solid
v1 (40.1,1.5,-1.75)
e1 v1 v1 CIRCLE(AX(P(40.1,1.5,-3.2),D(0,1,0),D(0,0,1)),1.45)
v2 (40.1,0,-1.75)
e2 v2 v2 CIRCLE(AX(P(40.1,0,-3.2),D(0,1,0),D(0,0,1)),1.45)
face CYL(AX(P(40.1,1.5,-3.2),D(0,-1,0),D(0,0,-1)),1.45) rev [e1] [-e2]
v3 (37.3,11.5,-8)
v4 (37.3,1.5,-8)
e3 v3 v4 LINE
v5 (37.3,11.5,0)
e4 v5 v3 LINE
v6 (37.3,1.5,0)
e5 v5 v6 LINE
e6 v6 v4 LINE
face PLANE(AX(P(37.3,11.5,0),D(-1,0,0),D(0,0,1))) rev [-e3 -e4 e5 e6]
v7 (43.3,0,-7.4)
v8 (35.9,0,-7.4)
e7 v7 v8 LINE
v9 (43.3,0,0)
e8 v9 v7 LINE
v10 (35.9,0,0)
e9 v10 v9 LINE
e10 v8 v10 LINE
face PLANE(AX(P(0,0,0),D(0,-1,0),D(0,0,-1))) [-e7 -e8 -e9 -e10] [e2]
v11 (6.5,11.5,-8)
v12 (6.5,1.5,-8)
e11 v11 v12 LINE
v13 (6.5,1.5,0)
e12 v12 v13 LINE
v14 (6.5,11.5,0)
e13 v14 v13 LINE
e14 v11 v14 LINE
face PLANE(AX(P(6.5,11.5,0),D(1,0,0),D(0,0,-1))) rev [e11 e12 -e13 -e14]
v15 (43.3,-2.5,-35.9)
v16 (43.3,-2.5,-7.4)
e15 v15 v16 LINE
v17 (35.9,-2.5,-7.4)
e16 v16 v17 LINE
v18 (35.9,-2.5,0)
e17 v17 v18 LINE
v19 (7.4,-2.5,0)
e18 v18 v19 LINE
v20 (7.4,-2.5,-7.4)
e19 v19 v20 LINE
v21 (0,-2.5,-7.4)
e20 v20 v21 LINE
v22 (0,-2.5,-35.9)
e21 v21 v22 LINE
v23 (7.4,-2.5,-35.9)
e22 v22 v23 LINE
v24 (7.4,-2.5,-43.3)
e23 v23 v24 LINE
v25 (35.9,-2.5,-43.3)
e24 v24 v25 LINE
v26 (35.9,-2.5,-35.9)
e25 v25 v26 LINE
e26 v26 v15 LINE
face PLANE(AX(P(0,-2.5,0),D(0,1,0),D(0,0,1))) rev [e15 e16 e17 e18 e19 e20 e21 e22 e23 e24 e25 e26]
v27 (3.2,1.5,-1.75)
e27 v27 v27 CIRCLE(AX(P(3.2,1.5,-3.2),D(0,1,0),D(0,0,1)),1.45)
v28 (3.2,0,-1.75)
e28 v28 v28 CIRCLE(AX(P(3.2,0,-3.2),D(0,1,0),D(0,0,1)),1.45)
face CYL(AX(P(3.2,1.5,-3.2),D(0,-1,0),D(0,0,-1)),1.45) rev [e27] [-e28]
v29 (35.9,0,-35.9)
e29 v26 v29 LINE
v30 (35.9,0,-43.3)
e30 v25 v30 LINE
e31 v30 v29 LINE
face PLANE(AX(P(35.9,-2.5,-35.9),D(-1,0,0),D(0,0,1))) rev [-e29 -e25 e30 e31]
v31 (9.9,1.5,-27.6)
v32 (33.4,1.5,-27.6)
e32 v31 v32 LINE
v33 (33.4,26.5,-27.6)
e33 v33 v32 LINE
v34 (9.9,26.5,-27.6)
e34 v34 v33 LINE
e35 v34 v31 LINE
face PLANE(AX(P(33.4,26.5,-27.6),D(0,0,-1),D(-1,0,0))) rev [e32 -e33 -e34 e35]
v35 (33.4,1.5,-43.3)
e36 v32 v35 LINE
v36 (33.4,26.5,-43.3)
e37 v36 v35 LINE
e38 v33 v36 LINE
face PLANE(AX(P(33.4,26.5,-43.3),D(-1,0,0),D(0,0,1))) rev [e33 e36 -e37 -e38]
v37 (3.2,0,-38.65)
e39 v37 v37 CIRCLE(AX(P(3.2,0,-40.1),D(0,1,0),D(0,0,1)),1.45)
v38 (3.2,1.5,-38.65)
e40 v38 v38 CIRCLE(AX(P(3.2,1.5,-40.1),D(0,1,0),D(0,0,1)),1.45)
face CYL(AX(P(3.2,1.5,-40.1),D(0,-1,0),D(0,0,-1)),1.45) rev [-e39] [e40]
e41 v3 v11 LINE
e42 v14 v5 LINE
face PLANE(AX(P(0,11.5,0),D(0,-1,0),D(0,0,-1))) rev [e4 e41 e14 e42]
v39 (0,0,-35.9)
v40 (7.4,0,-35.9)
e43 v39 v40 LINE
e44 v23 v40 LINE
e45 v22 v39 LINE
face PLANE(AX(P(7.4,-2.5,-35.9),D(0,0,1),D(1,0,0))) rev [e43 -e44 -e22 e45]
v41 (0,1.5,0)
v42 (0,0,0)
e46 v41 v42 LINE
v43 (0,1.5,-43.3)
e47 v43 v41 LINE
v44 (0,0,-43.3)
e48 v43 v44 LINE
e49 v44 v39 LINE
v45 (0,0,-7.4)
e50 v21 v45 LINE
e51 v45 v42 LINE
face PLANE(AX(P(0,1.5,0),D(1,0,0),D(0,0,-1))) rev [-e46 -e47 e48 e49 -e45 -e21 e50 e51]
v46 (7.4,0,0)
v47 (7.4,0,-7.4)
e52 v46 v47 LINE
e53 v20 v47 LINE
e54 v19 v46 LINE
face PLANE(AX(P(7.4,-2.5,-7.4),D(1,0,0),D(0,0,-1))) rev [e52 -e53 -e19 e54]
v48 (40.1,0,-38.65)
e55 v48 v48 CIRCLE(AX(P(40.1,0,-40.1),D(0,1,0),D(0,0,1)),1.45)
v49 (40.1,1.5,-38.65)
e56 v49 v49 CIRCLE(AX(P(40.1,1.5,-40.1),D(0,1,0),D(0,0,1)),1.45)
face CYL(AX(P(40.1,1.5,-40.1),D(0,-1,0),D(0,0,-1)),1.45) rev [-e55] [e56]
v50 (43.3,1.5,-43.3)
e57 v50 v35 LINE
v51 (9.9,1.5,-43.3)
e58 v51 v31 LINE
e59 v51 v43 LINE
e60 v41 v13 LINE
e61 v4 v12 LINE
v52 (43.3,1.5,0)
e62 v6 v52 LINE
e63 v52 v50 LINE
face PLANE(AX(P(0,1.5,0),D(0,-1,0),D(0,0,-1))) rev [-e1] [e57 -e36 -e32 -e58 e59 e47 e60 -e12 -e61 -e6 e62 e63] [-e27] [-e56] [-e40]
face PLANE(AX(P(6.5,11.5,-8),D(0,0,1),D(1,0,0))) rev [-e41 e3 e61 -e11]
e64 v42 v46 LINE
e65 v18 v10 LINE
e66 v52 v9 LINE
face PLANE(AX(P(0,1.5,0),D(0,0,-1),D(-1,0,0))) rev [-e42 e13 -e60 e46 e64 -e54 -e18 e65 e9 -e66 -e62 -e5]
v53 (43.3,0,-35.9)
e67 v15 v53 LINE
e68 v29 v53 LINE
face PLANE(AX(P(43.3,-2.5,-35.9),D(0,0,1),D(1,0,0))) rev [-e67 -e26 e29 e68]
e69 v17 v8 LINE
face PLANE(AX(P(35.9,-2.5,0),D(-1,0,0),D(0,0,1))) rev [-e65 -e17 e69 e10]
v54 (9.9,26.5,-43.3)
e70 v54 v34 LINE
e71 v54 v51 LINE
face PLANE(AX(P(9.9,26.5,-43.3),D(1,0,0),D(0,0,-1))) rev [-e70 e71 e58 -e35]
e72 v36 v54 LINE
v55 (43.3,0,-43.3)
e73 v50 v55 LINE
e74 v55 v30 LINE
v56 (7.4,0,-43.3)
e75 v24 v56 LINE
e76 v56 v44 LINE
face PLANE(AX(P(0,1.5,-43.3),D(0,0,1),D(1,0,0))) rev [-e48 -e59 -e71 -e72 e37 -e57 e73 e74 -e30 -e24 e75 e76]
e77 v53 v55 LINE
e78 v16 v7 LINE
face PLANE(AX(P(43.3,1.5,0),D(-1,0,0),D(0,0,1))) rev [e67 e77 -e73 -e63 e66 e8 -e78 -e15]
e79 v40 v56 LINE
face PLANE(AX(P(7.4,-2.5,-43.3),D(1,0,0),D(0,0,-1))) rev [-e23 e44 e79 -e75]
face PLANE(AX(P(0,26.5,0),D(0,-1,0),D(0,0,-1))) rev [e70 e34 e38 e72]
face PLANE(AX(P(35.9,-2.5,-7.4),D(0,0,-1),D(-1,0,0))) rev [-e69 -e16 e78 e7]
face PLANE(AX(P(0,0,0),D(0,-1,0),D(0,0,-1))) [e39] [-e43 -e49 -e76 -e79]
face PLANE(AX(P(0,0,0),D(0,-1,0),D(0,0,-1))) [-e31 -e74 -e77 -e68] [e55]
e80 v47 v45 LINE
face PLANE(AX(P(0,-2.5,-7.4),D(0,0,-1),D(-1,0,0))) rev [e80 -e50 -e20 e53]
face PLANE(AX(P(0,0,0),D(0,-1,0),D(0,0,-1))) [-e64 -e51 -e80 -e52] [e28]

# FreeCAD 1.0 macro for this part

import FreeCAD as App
import Part
import Sketcher
Q = App.Units.Quantity


def add_polygon(sketch, points):
    """Adds a closed chain of lines whose ends are joined by coincident constraints."""
    first, n = sketch.GeometryCount, len(points)
    for a, b in zip(points, points[1:] + points[:1]):
        sketch.addGeometry(Part.LineSegment(App.Vector(*a, 0), App.Vector(*b, 0)), False)
    for i in range(n):
        sketch.addConstraint(Sketcher.Constraint("Coincident", first + i, 2, first + (i + 1) % n, 1))

doc = App.newDocument("Part")
params = doc.addObject("Spreadsheet::Sheet", "Params")
for row, (alias, value) in enumerate([
    ("sketch1_diameter", "2.9 mm"),
    ("sketch1_width", "43.3 mm"),
    ("pad1_length", "1.5 mm"),
    ("sketch2_width", "7.4 mm"),
    ("sketch2_width2", "28.5 mm"),
    ("pad2_length", "2.5 mm"),
    ("sketch3_height", "8 mm"),
    ("sketch3_width", "30.8 mm"),
    ("pad3_length", "10 mm"),
    ("sketch4_width", "23.5 mm"),
    ("sketch4_height", "15.7 mm"),
    ("pad4_length", "25 mm"),
], start=1):
    params.set(f"A{row}", alias)
    params.set(f"B{row}", "=" + value)
    params.setAlias(f"B{row}", alias)

body = doc.addObject("PartDesign::Body", "Body")

sketch1 = body.newObject("Sketcher::SketchObject", "Sketch")
sketch1.AttachmentSupport = (doc.getObject("XZ_Plane"), [""])
sketch1.MapMode = "FlatFace"
add_polygon(sketch1, [(0, -43.3), (0, 0), (43.3, 0), (43.3, -43.3)])
sketch1.addGeometry(Part.Circle(App.Vector(3.2, -3.2, 0), App.Vector(0, 0, 1), 1.4), False)
sketch1.addGeometry(Part.Circle(App.Vector(40.1, -3.2, 0), App.Vector(0, 0, 1), 1.4), False)
sketch1.addGeometry(Part.Circle(App.Vector(3.2, -40.1, 0), App.Vector(0, 0, 1), 1.4), False)
sketch1.addGeometry(Part.Circle(App.Vector(40.1, -40.1, 0), App.Vector(0, 0, 1), 1.4), False)
sketch1.addConstraint([
    Sketcher.Constraint("Vertical", 0),
    Sketcher.Constraint("Horizontal", 1),
    Sketcher.Constraint("Vertical", 2),
    Sketcher.Constraint("Horizontal", 3),
    Sketcher.Constraint("Coincident", 0, 2, -1, 1),
    Sketcher.Constraint("Equal", 4, 5),
    Sketcher.Constraint("Equal", 5, 6),
    Sketcher.Constraint("Equal", 6, 7),
    Sketcher.Constraint("Horizontal", 4, 3, 5, 3),
    Sketcher.Constraint("Horizontal", 6, 3, 7, 3),
    Sketcher.Constraint("Vertical", 4, 3, 6, 3),
    Sketcher.Constraint("Vertical", 5, 3, 7, 3),
    Sketcher.Constraint("Equal", 3, 0),
    Sketcher.Constraint("Diameter", 4, Q("2.9 mm")),
    Sketcher.Constraint("DistanceX", 1, 1, 1, 2, Q("43.3 mm")),
    Sketcher.Constraint("DistanceX", -1, 1, 4, 3, Q("3.2 mm")),
    Sketcher.Constraint("DistanceY", 4, 3, -1, 1, Q("3.2 mm")),
    Sketcher.Constraint("DistanceX", -1, 1, 5, 3, Q("40.1 mm")),
    Sketcher.Constraint("DistanceY", 6, 3, -1, 1, Q("40.1 mm")),
])
sketch1.setExpression("Constraints[17]", "Params.sketch1_diameter")
sketch1.setExpression("Constraints[18]", "Params.sketch1_width")
pad1 = body.newObject("PartDesign::Pad", "Pad")
pad1.Profile = sketch1
pad1.setExpression("Length", "Params.pad1_length")
pad1.Reversed = True

sketch2 = body.newObject("Sketcher::SketchObject", "Sketch001")
sketch2.AttachmentSupport = (doc.getObject("XZ_Plane"), [""])
sketch2.MapMode = "FlatFace"
add_polygon(sketch2, [(0, -7), (0, -36), (7, -36), (7, -43), (36, -43), (36, -36), (43, -36), (43, -7), (36, -7), (36, 0), (7, 0), (7, -7)])
sketch2.addConstraint([
    Sketcher.Constraint("Vertical", 0),
    Sketcher.Constraint("Horizontal", 1),
    Sketcher.Constraint("Vertical", 2),
    Sketcher.Constraint("Horizontal", 3),
    Sketcher.Constraint("Vertical", 4),
    Sketcher.Constraint("Horizontal", 5),
    Sketcher.Constraint("Vertical", 6),
    Sketcher.Constraint("Horizontal", 7),
    Sketcher.Constraint("Vertical", 8),
    Sketcher.Constraint("Horizontal", 9),
    Sketcher.Constraint("Vertical", 10),
    Sketcher.Constraint("Horizontal", 11),
    Sketcher.Constraint("PointOnObject", 0, 2, -2),
    Sketcher.Constraint("PointOnObject", 8, 2, -1),
    Sketcher.Constraint("Horizontal", 1, 2, 4, 2),
    Sketcher.Constraint("Horizontal", 7, 2, 10, 2),
    Sketcher.Constraint("Vertical", 4, 2, 7, 2),
    Sketcher.Constraint("Vertical", 2, 2, 9, 2),
    Sketcher.Constraint("Equal", 1, 5),
    Sketcher.Constraint("Equal", 9, 0),
    Sketcher.Constraint("Equal", 11, 2),
    Sketcher.Constraint("Equal", 4, 8),
    Sketcher.Constraint("DistanceX", 1, 1, 1, 2, Q("7.4 mm")),
    Sketcher.Constraint("DistanceX", 3, 1, 3, 2, Q("28.5 mm")),
])
sketch2.setExpression("Constraints[34]", "Params.sketch2_width")
sketch2.setExpression("Constraints[35]", "Params.sketch2_width2")
pad2 = body.newObject("PartDesign::Pad", "Pad001")
pad2.Profile = sketch2
pad2.setExpression("Length", "Params.pad2_length")

sketch3 = body.newObject("Sketcher::SketchObject", "Sketch002")
sketch3.AttachmentSupport = (doc.getObject("XZ_Plane"), [""])
sketch3.MapMode = "FlatFace"
sketch3.AttachmentOffset = App.Placement(App.Vector(0, 0, -1.5), App.Rotation())
add_polygon(sketch3, [(6, -8), (6, 0), (37, 0), (37, -8)])
sketch3.addConstraint([
    Sketcher.Constraint("Vertical", 0),
    Sketcher.Constraint("Horizontal", 1),
    Sketcher.Constraint("Vertical", 2),
    Sketcher.Constraint("Horizontal", 3),
    Sketcher.Constraint("PointOnObject", 0, 2, -1),
    Sketcher.Constraint("DistanceY", 0, 1, 0, 2, Q("8 mm")),
    Sketcher.Constraint("DistanceX", 1, 1, 1, 2, Q("30.8 mm")),
    Sketcher.Constraint("DistanceX", -1, 1, 0, 2, Q("6.5 mm")),
])
sketch3.setExpression("Constraints[9]", "Params.sketch3_height")
sketch3.setExpression("Constraints[10]", "Params.sketch3_width")
pad3 = body.newObject("PartDesign::Pad", "Pad002")
pad3.Profile = sketch3
pad3.setExpression("Length", "Params.pad3_length")
pad3.Reversed = True

sketch4 = body.newObject("Sketcher::SketchObject", "Sketch003")
sketch4.AttachmentSupport = (doc.getObject("XZ_Plane"), [""])
sketch4.MapMode = "FlatFace"
sketch4.AttachmentOffset = App.Placement(App.Vector(0, 0, -1.5), App.Rotation())
add_polygon(sketch4, [(10, -43), (10, -28), (33, -28), (33, -43)])
sketch4.addConstraint([
    Sketcher.Constraint("Vertical", 0),
    Sketcher.Constraint("Horizontal", 1),
    Sketcher.Constraint("Vertical", 2),
    Sketcher.Constraint("Horizontal", 3),
    Sketcher.Constraint("DistanceX", 1, 1, 1, 2, Q("23.5 mm")),
    Sketcher.Constraint("DistanceY", 0, 1, 0, 2, Q("15.7 mm")),
    Sketcher.Constraint("DistanceX", -1, 1, 0, 2, Q("9.9 mm")),
    Sketcher.Constraint("DistanceY", 0, 2, -1, 1, Q("27.6 mm")),
])
sketch4.setExpression("Constraints[8]", "Params.sketch4_width")
sketch4.setExpression("Constraints[9]", "Params.sketch4_height")
pad4 = body.newObject("PartDesign::Pad", "Pad003")
pad4.Profile = sketch4
pad4.setExpression("Length", "Params.pad4_length")
pad4.Reversed = True

doc.recompute()
